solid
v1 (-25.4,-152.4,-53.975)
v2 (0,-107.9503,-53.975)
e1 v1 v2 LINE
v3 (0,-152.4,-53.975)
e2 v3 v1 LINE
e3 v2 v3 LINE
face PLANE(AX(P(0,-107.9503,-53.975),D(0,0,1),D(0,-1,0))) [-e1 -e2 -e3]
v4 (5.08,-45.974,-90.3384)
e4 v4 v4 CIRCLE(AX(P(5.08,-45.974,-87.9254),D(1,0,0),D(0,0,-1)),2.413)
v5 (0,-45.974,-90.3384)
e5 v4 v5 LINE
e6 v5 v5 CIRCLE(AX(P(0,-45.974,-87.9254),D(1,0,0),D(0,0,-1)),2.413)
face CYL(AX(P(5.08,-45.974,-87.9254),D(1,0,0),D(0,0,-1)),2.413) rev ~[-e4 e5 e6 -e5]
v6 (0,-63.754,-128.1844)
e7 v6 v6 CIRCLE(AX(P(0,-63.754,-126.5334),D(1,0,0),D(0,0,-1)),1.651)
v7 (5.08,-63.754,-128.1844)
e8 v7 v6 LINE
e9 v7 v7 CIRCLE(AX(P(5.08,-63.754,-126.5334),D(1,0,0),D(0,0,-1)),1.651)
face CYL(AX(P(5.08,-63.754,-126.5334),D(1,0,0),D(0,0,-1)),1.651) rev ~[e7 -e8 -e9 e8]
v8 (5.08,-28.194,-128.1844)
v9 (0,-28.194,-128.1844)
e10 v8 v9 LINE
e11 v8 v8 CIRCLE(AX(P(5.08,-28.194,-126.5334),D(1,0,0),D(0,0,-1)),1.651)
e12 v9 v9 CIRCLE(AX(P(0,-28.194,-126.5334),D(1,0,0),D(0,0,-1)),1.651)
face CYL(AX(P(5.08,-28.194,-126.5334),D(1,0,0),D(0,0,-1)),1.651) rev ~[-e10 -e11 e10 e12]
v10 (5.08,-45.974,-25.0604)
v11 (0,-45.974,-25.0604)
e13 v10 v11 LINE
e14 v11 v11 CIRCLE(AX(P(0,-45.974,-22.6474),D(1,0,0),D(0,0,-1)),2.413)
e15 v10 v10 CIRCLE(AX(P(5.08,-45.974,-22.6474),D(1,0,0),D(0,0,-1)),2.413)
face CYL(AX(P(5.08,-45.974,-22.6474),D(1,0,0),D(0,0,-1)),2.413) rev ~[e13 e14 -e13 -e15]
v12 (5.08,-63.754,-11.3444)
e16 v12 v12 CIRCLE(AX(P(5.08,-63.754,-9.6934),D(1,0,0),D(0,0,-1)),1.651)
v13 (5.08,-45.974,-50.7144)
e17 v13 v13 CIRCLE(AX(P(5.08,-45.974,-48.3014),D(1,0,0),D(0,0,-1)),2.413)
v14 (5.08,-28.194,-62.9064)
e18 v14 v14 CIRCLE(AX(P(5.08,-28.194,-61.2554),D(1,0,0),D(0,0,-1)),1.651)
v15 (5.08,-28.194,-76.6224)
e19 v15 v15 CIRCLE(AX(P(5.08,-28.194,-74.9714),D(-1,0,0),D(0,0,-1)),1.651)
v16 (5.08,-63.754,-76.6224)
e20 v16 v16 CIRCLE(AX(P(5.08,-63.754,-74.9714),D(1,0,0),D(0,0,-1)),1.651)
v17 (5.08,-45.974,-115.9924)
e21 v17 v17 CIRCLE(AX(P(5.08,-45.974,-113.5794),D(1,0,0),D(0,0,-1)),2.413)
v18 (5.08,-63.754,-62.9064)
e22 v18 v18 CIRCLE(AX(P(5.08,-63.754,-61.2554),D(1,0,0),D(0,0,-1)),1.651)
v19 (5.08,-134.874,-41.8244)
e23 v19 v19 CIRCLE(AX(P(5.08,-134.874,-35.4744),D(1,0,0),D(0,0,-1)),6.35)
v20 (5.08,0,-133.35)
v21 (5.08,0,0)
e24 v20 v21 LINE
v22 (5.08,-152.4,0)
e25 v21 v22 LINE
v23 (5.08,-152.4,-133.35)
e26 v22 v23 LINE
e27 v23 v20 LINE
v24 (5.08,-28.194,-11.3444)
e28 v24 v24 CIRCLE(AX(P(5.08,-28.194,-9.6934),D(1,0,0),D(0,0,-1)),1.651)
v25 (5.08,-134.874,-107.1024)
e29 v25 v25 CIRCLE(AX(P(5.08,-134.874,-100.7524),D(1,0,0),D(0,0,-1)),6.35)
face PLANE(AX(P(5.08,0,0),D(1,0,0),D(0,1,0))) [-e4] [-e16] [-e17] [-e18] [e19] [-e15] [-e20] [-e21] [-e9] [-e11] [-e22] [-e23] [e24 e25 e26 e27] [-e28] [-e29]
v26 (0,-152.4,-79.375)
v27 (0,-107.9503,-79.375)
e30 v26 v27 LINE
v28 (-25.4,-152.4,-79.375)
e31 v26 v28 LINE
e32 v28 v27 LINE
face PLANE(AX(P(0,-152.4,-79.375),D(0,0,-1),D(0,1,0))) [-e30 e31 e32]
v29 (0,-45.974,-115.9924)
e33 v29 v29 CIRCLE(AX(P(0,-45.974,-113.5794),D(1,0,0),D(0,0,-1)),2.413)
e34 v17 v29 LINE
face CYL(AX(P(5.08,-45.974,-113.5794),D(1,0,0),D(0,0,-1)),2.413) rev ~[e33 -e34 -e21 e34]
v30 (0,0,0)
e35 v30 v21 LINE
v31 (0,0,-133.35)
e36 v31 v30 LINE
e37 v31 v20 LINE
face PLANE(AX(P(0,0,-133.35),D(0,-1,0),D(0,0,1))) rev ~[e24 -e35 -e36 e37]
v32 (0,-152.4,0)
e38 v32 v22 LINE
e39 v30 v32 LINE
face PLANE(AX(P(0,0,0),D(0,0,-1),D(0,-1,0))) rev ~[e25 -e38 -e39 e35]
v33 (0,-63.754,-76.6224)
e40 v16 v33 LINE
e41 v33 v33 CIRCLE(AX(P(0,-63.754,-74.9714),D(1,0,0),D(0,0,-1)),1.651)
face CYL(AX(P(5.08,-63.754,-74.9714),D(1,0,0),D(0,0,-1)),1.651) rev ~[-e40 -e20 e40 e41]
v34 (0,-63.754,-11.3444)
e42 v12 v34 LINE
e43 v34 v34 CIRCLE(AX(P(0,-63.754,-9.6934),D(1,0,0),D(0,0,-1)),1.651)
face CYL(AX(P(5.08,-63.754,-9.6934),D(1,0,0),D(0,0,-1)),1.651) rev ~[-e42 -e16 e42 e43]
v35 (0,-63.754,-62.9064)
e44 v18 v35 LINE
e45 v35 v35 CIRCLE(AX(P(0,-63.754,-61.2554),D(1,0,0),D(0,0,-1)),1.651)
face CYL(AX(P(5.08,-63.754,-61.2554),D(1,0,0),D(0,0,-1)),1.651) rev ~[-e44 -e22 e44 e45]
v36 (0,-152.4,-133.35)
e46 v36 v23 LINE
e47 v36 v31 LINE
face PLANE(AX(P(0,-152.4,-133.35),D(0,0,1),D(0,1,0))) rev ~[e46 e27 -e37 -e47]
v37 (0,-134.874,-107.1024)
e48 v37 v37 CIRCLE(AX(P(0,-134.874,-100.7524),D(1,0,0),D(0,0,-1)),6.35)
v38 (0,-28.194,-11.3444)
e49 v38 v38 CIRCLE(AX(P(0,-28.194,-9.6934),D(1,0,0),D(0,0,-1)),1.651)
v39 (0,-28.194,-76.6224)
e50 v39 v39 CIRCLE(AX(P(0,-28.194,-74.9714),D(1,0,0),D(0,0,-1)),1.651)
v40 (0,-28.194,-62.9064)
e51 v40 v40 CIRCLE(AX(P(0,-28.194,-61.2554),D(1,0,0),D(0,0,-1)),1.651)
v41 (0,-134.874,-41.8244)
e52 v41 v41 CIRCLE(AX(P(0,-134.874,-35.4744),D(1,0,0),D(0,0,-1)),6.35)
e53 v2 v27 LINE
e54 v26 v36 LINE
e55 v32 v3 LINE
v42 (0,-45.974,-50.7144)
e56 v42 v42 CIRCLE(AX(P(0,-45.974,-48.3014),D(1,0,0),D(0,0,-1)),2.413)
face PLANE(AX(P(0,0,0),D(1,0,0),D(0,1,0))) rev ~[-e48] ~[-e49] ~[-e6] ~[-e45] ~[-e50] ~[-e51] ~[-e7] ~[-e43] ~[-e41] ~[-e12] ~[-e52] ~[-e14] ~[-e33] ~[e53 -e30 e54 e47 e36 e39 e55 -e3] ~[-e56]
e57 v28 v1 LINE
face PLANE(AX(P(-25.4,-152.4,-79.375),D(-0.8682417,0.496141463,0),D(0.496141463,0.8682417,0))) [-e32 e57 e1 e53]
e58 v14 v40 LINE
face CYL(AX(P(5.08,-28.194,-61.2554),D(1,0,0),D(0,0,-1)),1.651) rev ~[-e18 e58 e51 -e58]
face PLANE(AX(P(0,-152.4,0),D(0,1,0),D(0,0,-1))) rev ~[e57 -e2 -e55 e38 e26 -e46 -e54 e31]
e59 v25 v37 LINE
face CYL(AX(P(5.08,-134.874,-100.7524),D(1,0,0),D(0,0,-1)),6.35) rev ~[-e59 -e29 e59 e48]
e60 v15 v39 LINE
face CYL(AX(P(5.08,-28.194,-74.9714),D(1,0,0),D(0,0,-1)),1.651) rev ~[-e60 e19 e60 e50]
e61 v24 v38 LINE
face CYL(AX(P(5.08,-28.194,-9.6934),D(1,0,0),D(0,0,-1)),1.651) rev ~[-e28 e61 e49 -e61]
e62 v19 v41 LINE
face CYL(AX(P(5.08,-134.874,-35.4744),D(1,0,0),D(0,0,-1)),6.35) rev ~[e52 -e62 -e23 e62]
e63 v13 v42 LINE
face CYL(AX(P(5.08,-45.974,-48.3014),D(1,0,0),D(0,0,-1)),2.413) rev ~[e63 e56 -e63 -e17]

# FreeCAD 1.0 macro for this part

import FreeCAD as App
import Part
import Sketcher
Q = App.Units.Quantity


def add_polygon(sketch, points):
    """Adds a closed chain of lines whose ends are joined by coincident constraints."""
    first, n = sketch.GeometryCount, len(points)
    for a, b in zip(points, points[1:] + points[:1]):
        sketch.addGeometry(Part.LineSegment(App.Vector(*a, 0), App.Vector(*b, 0)), False)
    for i in range(n):
        sketch.addConstraint(Sketcher.Constraint("Coincident", first + i, 2, first + (i + 1) % n, 1))

doc = App.newDocument("Part")
body = doc.addObject("PartDesign::Body", "Body")

sketch1 = body.newObject("Sketcher::SketchObject", "Sketch")
sketch1.AttachmentSupport = (doc.getObject("YZ_Plane"), [""])
sketch1.MapMode = "FlatFace"
add_polygon(sketch1, [(0, -133.35), (0, 0), (-152.4, 0), (-152.4, -133.35)])
sketch1.addConstraint(Sketcher.Constraint("Vertical", 0))
sketch1.addConstraint(Sketcher.Constraint("Horizontal", 1))
sketch1.addConstraint(Sketcher.Constraint("Vertical", 2))
sketch1.addConstraint(Sketcher.Constraint("Horizontal", 3))
sketch1.addConstraint(Sketcher.Constraint("Coincident", 0, 2, -1, 1))
sketch1.addConstraint(Sketcher.Constraint("DistanceX", 1, 2, 1, 1, Q("6 in")))
sketch1.addConstraint(Sketcher.Constraint("DistanceY", 0, 1, 0, 2, Q("5.25 in")))
pad1 = body.newObject("PartDesign::Pad", "Pad")
pad1.Profile = sketch1
pad1.Length = Q("0.2 in")

sketch2 = body.newObject("Sketcher::SketchObject", "Sketch001")
sketch2.AttachmentSupport = (doc.getObject("YZ_Plane"), [""])
sketch2.MapMode = "FlatFace"
sketch2.AttachmentOffset = App.Placement(App.Vector(0, 0, 0.2 * 25.4), App.Rotation())
sketch2.addGeometry(Part.Circle(App.Vector(-28.194, -126.5334, 0), App.Vector(0, 0, 1), 1.651), False)
sketch2.addGeometry(Part.Circle(App.Vector(-28.194, -74.9714, 0), App.Vector(0, 0, 1), 1.651), False)
sketch2.addGeometry(Part.Circle(App.Vector(-28.194, -61.2554, 0), App.Vector(0, 0, 1), 1.651), False)
sketch2.addGeometry(Part.Circle(App.Vector(-28.194, -9.6934, 0), App.Vector(0, 0, 1), 1.651), False)
sketch2.addGeometry(Part.Circle(App.Vector(-63.754, -126.5334, 0), App.Vector(0, 0, 1), 1.651), False)
sketch2.addGeometry(Part.Circle(App.Vector(-63.754, -74.9714, 0), App.Vector(0, 0, 1), 1.651), False)
sketch2.addGeometry(Part.Circle(App.Vector(-63.754, -61.2554, 0), App.Vector(0, 0, 1), 1.651), False)
sketch2.addGeometry(Part.Circle(App.Vector(-63.754, -9.6934, 0), App.Vector(0, 0, 1), 1.651), False)
sketch2.addGeometry(Part.Circle(App.Vector(-45.974, -113.5794, 0), App.Vector(0, 0, 1), 2.413), False)
sketch2.addGeometry(Part.Circle(App.Vector(-45.974, -87.9254, 0), App.Vector(0, 0, 1), 2.413), False)
sketch2.addGeometry(Part.Circle(App.Vector(-45.974, -48.3014, 0), App.Vector(0, 0, 1), 2.413), False)
sketch2.addGeometry(Part.Circle(App.Vector(-45.974, -22.6474, 0), App.Vector(0, 0, 1), 2.413), False)
sketch2.addConstraint(Sketcher.Constraint("Equal", 0, 1))
sketch2.addConstraint(Sketcher.Constraint("Equal", 1, 2))
sketch2.addConstraint(Sketcher.Constraint("Equal", 2, 3))
sketch2.addConstraint(Sketcher.Constraint("Equal", 3, 4))
sketch2.addConstraint(Sketcher.Constraint("Equal", 4, 5))
sketch2.addConstraint(Sketcher.Constraint("Equal", 5, 6))
sketch2.addConstraint(Sketcher.Constraint("Equal", 6, 7))
sketch2.addConstraint(Sketcher.Constraint("Equal", 8, 9))
sketch2.addConstraint(Sketcher.Constraint("Equal", 9, 10))
sketch2.addConstraint(Sketcher.Constraint("Equal", 10, 11))
sketch2.addConstraint(Sketcher.Constraint("Horizontal", 0, 3, 4, 3))
sketch2.addConstraint(Sketcher.Constraint("Horizontal", 1, 3, 5, 3))
sketch2.addConstraint(Sketcher.Constraint("Horizontal", 2, 3, 6, 3))
sketch2.addConstraint(Sketcher.Constraint("Horizontal", 3, 3, 7, 3))
sketch2.addConstraint(Sketcher.Constraint("Vertical", 0, 3, 1, 3))
sketch2.addConstraint(Sketcher.Constraint("Vertical", 1, 3, 2, 3))
sketch2.addConstraint(Sketcher.Constraint("Vertical", 2, 3, 3, 3))
sketch2.addConstraint(Sketcher.Constraint("Vertical", 4, 3, 5, 3))
sketch2.addConstraint(Sketcher.Constraint("Vertical", 5, 3, 6, 3))
sketch2.addConstraint(Sketcher.Constraint("Vertical", 6, 3, 7, 3))
sketch2.addConstraint(Sketcher.Constraint("Vertical", 8, 3, 9, 3))
sketch2.addConstraint(Sketcher.Constraint("Vertical", 9, 3, 10, 3))
sketch2.addConstraint(Sketcher.Constraint("Vertical", 10, 3, 11, 3))
sketch2.addConstraint(Sketcher.Constraint("Diameter", 0, Q("0.13 in")))
sketch2.addConstraint(Sketcher.Constraint("Diameter", 8, Q("0.19 in")))
sketch2.addConstraint(Sketcher.Constraint("DistanceX", 0, 3, -1, 1, Q("1.11 in")))
sketch2.addConstraint(Sketcher.Constraint("DistanceY", 0, 3, 3, 3, Q("4.6 in")))
sketch2.addConstraint(Sketcher.Constraint("DistanceX", 4, 3, 0, 3, Q("1.4 in")))
sketch2.addConstraint(Sketcher.Constraint("DistanceX", 8, 3, 0, 3, Q("0.7 in")))
sketch2.addConstraint(Sketcher.Constraint("DistanceY", 0, 3, 1, 3, Q("2.03 in")))
sketch2.addConstraint(Sketcher.Constraint("DistanceY", 1, 3, 2, 3, Q("0.54 in")))
sketch2.addConstraint(Sketcher.Constraint("DistanceY", 0, 3, 8, 3, Q("0.51 in")))
sketch2.addConstraint(Sketcher.Constraint("DistanceY", 9, 3, 1, 3, Q("0.51 in")))
sketch2.addConstraint(Sketcher.Constraint("DistanceY", 2, 3, 10, 3, Q("0.51 in")))
sketch2.addConstraint(Sketcher.Constraint("DistanceY", 11, 3, 3, 3, Q("0.51 in")))
sketch2.addConstraint(Sketcher.Constraint("DistanceY", 0, 3, -1, 1, Q("126.5334 mm")))
pocket1 = body.newObject("PartDesign::Pocket", "Pocket")
pocket1.Profile = sketch2
pocket1.Length = Q("0.2 in")

sketch3 = body.newObject("Sketcher::SketchObject", "Sketch002")
sketch3.AttachmentSupport = (doc.getObject("YZ_Plane"), [""])
sketch3.MapMode = "FlatFace"
sketch3.AttachmentOffset = App.Placement(App.Vector(0, 0, 0.2 * 25.4), App.Rotation())
sketch3.addGeometry(Part.Circle(App.Vector(-134.874, -35.4744, 0), App.Vector(0, 0, 1), 6.35), False)
sketch3.addGeometry(Part.Circle(App.Vector(-134.874, -100.7524, 0), App.Vector(0, 0, 1), 6.35), False)
sketch3.addConstraint(Sketcher.Constraint("Equal", 0, 1))
sketch3.addConstraint(Sketcher.Constraint("Vertical", 0, 3, 1, 3))
sketch3.addConstraint(Sketcher.Constraint("Diameter", 0, Q("0.5 in")))
sketch3.addConstraint(Sketcher.Constraint("DistanceX", 0, 3, -1, 1, Q("5.31 in")))
sketch3.addConstraint(Sketcher.Constraint("DistanceY", 1, 3, 0, 3, Q("2.57 in")))
sketch3.addConstraint(Sketcher.Constraint("DistanceY", 0, 3, -1, 1, Q("35.4744 mm")))
pocket2 = body.newObject("PartDesign::Pocket", "Pocket001")
pocket2.Profile = sketch3
pocket2.Length = Q("0.2 in")

sketch4 = body.newObject("Sketcher::SketchObject", "Sketch003")
sketch4.AttachmentSupport = (doc.getObject("YZ_Plane"), [""])
sketch4.MapMode = "FlatFace"
add_polygon(sketch4, [(-107.9503, -53.975), (-107.9503, -79.375), (-152.4, -79.375), (-152.4, -53.975)])
sketch4.addConstraint(Sketcher.Constraint("Vertical", 0))
sketch4.addConstraint(Sketcher.Constraint("Horizontal", 1))
sketch4.addConstraint(Sketcher.Constraint("Vertical", 2))
sketch4.addConstraint(Sketcher.Constraint("Horizontal", 3))
sketch4.addConstraint(Sketcher.Constraint("DistanceY", 0, 2, 0, 1, Q("1 in")))
sketch4.addConstraint(Sketcher.Constraint("DistanceX", 1, 2, -1, 1, Q("6 in")))
sketch4.addConstraint(Sketcher.Constraint("DistanceX", 1, 2, 1, 1, Q("1.75 in")))
sketch4.addConstraint(Sketcher.Constraint("DistanceY", 0, 2, -1, 1, Q("3.125 in")))
pad2 = body.newObject("PartDesign::Pad", "Pad001")
pad2.Profile = sketch4
pad2.Length = Q("1 in")
pad2.Reversed = True

sketch5 = body.newObject("Sketcher::SketchObject", "Sketch004")
sketch5.AttachmentSupport = (doc.getObject("XY_Plane"), [""])
sketch5.MapMode = "FlatFace"
sketch5.AttachmentOffset = App.Placement(App.Vector(0, 0, -3.125 * 25.4), App.Rotation())
add_polygon(sketch5, [(0, -107.9503), (-25.4, -152.4), (-25.4, -107.9503)])
sketch5.addConstraint(Sketcher.Constraint("Vertical", 1))
sketch5.addConstraint(Sketcher.Constraint("Horizontal", 2))
sketch5.addConstraint(Sketcher.Constraint("PointOnObject", 2, 2, -2))
sketch5.addConstraint(Sketcher.Constraint("DistanceX", 2, 1, 2, 2, Q("1 in")))
sketch5.addConstraint(Sketcher.Constraint("DistanceY", 0, 2, -1, 1, Q("6 in")))
sketch5.addConstraint(Sketcher.Constraint("DistanceY", 1, 1, 1, 2, Q("1.75 in")))
pocket3 = body.newObject("PartDesign::Pocket", "Pocket002")
pocket3.Profile = sketch5
pocket3.Length = Q("1 in")
pocket3.Reversed = True

doc.recompute()
